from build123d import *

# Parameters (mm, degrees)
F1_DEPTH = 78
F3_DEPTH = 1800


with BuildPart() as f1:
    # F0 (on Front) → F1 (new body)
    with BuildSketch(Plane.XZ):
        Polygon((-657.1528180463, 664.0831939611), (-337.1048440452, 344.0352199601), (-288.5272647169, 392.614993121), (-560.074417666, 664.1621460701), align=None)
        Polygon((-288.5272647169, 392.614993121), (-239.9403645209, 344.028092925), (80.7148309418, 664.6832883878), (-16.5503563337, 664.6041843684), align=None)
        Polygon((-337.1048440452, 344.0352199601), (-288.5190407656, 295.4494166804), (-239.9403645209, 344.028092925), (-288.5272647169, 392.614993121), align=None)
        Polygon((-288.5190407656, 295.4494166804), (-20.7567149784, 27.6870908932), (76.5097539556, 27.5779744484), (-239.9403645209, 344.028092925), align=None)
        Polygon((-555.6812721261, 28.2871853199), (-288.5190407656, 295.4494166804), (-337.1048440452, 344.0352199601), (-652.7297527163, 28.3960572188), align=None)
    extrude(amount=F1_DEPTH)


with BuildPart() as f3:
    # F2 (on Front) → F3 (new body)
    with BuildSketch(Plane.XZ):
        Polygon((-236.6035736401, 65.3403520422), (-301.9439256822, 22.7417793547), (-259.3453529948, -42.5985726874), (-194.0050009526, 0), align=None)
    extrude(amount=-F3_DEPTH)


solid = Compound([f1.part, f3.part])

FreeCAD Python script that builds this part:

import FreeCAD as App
import Part
import Sketcher
Q = App.Units.Quantity


def add_polygon(sketch, points):
    """Adds a closed chain of lines whose ends are joined by coincident constraints."""
    first, n = sketch.GeometryCount, len(points)
    for a, b in zip(points, points[1:] + points[:1]):
        sketch.addGeometry(Part.LineSegment(App.Vector(*a, 0), App.Vector(*b, 0)), False)
    for i in range(n):
        sketch.addConstraint(Sketcher.Constraint("Coincident", first + i, 2, first + (i + 1) % n, 1))

doc = App.newDocument("Part")
body = doc.addObject("PartDesign::Body", "Body")

# Sketch on XZ plane
sketch1 = doc.addObject("Sketcher::SketchObject", "Sketch")
body.addObject(sketch1)
sketch1.AttachmentSupport = (doc.XZ_Plane, [""])
sketch1.MapMode = "FlatFace"
add_polygon(sketch1, [(-657, 664), (-337, 344), (-653, 28), (-556, 28), (-289, 295), (-21, 28), (77, 28), (-240, 344), (81, 665), (-17, 665), (-289, 393), (-560, 664)])  # lines 0-11
sketch1.addConstraint(Sketcher.Constraint("Perpendicular", 0, 3))
sketch1.addConstraint(Sketcher.Constraint("Perpendicular", 3, 4))
sketch1.addConstraint(Sketcher.Constraint("Parallel", 2, 5))
sketch1.addConstraint(Sketcher.Constraint("Parallel", 4, 6))
sketch1.addConstraint(Sketcher.Constraint("Perpendicular", 6, 7))
sketch1.addConstraint(Sketcher.Constraint("Parallel", 1, 9))
sketch1.addConstraint(Sketcher.Constraint("Perpendicular", 7, 10))
sketch1.addConstraint(Sketcher.Constraint("Parallel", 8, 11))
sketch1.addConstraint(Sketcher.Constraint("Angle", 0, Q("-45 deg")))
sketch1.addConstraint(Sketcher.Constraint("DistanceX", 0, 2, 5, 2, Q("413.614598 mm")))
sketch1.addConstraint(Sketcher.Constraint("DistanceX", 9, 2, 6, 2, Q("48.5869 mm")))
sketch1.addConstraint(Sketcher.Constraint("DistanceY", 6, 2, 9, 2, Q("48.5869 mm")))
sketch1.addConstraint(Sketcher.Constraint("DistanceX", 11, 2, 10, 2, Q("97.0784 mm")))
sketch1.addConstraint(Sketcher.Constraint("DistanceY", 9, 2, 11, 2, Q("271.468201 mm")))
sketch1.addConstraint(Sketcher.Constraint("Distance", 2, Q("97.048542 mm")))
sketch1.addConstraint(Sketcher.Constraint("Distance", 3, Q("377.824451 mm")))
sketch1.addConstraint(Sketcher.Constraint("Distance", 5, Q("97.26653 mm")))
sketch1.addConstraint(Sketcher.Constraint("Distance", 6, Q("447.528049 mm")))
sketch1.addConstraint(Sketcher.Constraint("Distance", 8, Q("97.265219 mm")))
sketch1.addConstraint(Sketcher.Constraint("DistanceY", -1, 1, 0, 2, Q("344.03522 mm")))
sketch1.addConstraint(Sketcher.Constraint("DistanceX", 3, 2, -1, 1, Q("288.519041 mm")))
sketch1.addConstraint(Sketcher.Constraint("DistanceY", -1, 1, 4, 2, Q("27.687091 mm")))
sketch1.addConstraint(Sketcher.Constraint("DistanceX", -1, 1, 7, 2, Q("80.714831 mm")))
sketch1.addConstraint(Sketcher.Constraint("DistanceY", -1, 1, 7, 2, Q("664.683288 mm")))
pad1 = doc.addObject("PartDesign::Pad", "Pad")
body.addObject(pad1)
pad1.Profile = sketch1
pad1.Length = 78
body2 = doc.addObject("PartDesign::Body", "Body001")

# Sketch on XZ plane
sketch2 = doc.addObject("Sketcher::SketchObject", "Sketch001")
body2.addObject(sketch2)
sketch2.AttachmentSupport = (doc.getObject("XZ_Plane001"), [""])
sketch2.MapMode = "FlatFace"
add_polygon(sketch2, [(-237, 65), (-302, 23), (-259, -43), (-194, 0)])  # lines 0-3
sketch2.addConstraint(Sketcher.Constraint("PointOnObject", 2, 2, -1))
sketch2.addConstraint(Sketcher.Constraint("Perpendicular", 0, 1))
sketch2.addConstraint(Sketcher.Constraint("Perpendicular", 1, 2))
sketch2.addConstraint(Sketcher.Constraint("Perpendicular", 2, 3))
sketch2.addConstraint(Sketcher.Constraint("Equal", 0, 1))
sketch2.addConstraint(Sketcher.Constraint("Distance", 0, Q("78 mm")))
sketch2.addConstraint(Sketcher.Constraint("DistanceX", 2, 2, -1, 1, Q("194.005001 mm")))
sketch2.addConstraint(Sketcher.Constraint("DistanceY", -1, 1, 0, 2, Q("22.741779 mm")))
pad2 = doc.addObject("PartDesign::Pad", "Pad001")
body2.addObject(pad2)
pad2.Profile = sketch2
pad2.Length = 1800
pad2.Reversed = True

doc.recompute()
